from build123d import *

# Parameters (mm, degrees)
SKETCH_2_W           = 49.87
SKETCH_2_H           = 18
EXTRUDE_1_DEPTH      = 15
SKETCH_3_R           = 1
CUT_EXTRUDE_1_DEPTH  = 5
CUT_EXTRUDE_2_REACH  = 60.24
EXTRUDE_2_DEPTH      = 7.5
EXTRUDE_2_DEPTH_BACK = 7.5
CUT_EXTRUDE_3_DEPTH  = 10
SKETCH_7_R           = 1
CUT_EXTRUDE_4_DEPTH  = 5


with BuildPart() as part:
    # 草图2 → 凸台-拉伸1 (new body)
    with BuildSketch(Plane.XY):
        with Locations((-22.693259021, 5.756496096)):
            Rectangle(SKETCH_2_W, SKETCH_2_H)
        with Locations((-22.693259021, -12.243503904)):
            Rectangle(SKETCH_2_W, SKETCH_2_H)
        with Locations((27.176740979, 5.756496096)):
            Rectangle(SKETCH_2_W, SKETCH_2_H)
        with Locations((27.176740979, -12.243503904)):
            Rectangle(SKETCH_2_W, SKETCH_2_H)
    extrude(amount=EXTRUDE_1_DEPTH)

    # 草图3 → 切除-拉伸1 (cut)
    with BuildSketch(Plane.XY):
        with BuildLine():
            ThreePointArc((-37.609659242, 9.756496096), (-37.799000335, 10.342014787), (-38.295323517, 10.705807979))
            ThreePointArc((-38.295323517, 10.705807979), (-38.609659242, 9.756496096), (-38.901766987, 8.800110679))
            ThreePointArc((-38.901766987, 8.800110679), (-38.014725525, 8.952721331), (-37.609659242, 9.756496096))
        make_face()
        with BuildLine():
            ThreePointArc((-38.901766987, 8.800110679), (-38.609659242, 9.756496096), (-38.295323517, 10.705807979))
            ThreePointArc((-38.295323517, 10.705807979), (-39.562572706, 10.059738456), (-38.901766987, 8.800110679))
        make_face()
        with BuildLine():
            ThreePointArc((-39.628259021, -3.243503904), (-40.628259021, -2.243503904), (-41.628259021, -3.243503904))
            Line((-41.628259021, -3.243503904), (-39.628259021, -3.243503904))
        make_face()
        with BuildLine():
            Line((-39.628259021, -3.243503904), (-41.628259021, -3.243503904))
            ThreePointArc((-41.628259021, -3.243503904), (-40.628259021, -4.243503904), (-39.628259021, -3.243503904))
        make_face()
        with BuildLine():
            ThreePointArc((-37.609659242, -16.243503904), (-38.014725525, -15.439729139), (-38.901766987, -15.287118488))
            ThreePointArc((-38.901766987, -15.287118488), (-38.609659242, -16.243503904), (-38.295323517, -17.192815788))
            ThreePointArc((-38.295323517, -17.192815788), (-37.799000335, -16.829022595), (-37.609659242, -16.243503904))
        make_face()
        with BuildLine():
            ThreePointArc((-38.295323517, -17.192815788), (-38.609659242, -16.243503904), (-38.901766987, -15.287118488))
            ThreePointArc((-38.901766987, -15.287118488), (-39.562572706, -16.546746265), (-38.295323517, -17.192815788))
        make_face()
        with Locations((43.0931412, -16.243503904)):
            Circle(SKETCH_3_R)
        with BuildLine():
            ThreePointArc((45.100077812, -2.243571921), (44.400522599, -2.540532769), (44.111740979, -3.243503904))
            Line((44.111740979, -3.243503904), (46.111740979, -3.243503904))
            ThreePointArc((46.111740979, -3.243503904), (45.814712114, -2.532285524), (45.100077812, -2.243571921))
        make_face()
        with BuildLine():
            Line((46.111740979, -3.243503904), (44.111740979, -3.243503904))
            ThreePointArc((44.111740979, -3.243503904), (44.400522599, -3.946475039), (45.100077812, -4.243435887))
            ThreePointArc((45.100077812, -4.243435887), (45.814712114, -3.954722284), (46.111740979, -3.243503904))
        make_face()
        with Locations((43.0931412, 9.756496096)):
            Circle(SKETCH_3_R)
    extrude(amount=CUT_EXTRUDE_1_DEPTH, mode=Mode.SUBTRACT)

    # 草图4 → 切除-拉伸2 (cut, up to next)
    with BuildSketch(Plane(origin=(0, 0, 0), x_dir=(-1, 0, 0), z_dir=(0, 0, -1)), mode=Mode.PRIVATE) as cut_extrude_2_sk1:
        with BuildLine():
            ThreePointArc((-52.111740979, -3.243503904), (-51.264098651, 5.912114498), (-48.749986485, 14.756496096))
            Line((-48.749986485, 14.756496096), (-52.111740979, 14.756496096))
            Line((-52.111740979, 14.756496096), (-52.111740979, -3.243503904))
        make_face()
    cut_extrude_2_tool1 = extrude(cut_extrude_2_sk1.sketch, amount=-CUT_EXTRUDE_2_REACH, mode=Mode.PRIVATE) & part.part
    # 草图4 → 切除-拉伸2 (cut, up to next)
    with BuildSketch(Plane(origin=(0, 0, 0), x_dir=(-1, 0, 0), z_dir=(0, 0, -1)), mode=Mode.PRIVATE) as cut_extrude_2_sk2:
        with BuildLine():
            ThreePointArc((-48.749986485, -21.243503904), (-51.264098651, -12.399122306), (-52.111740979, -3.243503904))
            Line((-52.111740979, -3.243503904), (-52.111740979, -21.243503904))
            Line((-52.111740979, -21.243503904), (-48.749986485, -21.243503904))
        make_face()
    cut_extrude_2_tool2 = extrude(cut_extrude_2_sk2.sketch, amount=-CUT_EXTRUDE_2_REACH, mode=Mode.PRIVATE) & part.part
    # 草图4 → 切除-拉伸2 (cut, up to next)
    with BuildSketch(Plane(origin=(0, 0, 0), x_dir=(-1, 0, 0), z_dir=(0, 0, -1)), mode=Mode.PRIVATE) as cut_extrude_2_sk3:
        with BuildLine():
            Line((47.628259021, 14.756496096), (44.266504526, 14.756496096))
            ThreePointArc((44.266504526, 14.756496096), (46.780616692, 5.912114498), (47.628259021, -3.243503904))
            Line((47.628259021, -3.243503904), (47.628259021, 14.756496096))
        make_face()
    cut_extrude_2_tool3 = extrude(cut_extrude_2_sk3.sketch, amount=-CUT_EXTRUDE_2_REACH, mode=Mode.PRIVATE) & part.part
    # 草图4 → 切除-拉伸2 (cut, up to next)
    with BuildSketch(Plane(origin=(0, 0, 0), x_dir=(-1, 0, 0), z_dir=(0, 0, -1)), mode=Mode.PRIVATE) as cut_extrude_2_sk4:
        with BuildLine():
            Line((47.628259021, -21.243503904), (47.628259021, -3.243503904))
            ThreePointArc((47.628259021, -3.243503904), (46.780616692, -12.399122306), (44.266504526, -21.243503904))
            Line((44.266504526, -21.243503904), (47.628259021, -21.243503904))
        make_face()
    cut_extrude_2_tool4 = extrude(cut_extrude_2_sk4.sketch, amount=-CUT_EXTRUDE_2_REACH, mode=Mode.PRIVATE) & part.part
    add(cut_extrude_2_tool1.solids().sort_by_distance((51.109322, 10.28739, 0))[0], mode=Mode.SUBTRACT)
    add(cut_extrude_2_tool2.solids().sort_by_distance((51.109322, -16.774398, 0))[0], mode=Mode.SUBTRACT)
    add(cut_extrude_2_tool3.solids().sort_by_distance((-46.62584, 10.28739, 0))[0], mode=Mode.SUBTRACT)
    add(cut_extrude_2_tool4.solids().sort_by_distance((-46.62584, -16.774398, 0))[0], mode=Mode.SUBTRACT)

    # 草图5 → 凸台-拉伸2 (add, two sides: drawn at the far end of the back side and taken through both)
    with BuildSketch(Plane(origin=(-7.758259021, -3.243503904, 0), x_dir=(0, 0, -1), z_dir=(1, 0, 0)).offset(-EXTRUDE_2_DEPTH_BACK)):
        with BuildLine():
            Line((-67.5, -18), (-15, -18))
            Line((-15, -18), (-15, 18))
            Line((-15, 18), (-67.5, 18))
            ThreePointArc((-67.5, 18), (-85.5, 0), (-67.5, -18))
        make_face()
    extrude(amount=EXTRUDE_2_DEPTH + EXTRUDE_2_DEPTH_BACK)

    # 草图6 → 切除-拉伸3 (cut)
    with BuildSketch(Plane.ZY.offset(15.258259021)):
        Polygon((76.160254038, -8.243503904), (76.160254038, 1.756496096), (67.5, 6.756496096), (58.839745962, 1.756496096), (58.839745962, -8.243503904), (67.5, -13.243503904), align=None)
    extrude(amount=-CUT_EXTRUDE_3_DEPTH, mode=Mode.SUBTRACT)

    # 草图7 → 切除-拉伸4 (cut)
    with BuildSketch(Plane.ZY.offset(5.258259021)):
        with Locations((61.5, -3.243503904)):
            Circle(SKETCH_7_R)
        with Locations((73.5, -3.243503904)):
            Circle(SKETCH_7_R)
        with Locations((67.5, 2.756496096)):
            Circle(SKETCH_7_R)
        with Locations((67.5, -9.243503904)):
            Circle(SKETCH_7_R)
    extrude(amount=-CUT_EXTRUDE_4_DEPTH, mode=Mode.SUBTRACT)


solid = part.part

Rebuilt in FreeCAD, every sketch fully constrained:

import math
import FreeCAD as App
import Part
import Sketcher
from FreeCAD import Vector
Q = App.Units.Quantity


def add_polygon(sketch, points):
    """Adds a closed chain of lines whose ends are joined by coincident constraints."""
    first, n = sketch.GeometryCount, len(points)
    for a, b in zip(points, points[1:] + points[:1]):
        sketch.addGeometry(Part.LineSegment(App.Vector(*a, 0), App.Vector(*b, 0)), False)
    for i in range(n):
        sketch.addConstraint(Sketcher.Constraint("Coincident", first + i, 2, first + (i + 1) % n, 1))

doc = App.newDocument("Part")
body = doc.addObject("PartDesign::Body", "Body")

# Sketch on XY plane
sketch1 = doc.addObject("Sketcher::SketchObject", "Sketch")
body.addObject(sketch1)
sketch1.AttachmentSupport = (doc.XY_Plane, [""])
sketch1.MapMode = "FlatFace"
add_polygon(sketch1, [(-47.628259, 14.756496), (-47.628259, -21.243504), (52.111741, -21.243504), (52.111741, 14.756496)])  # lines 0-3
sketch1.addConstraint(Sketcher.Constraint("Vertical", 0))
sketch1.addConstraint(Sketcher.Constraint("Horizontal", 1))
sketch1.addConstraint(Sketcher.Constraint("Vertical", 2))
sketch1.addConstraint(Sketcher.Constraint("Horizontal", 3))
sketch1.addConstraint(Sketcher.Constraint("DistanceY", 0, 2, 0, 1, Q("36 mm")))
sketch1.addConstraint(Sketcher.Constraint("DistanceX", 1, 1, 1, 2, Q("99.74 mm")))
sketch1.addConstraint(Sketcher.Constraint("DistanceX", 0, 2, -1, 1, Q("47.628259 mm")))
sketch1.addConstraint(Sketcher.Constraint("DistanceY", 0, 2, -1, 1, Q("21.243504 mm")))
pad1 = doc.addObject("PartDesign::Pad", "Pad")
body.addObject(pad1)
pad1.Profile = sketch1
pad1.Length = 15

# Sketch on XY plane
sketch2 = doc.addObject("Sketcher::SketchObject", "Sketch001")
body.addObject(sketch2)
sketch2.AttachmentSupport = (doc.XY_Plane, [""])
sketch2.MapMode = "FlatFace"
sketch2.addGeometry(Part.ArcOfCircle(Part.Circle(Vector(-38.609659, 9.756496, 0), Vector(0, 0, 1), 1), math.radians(0), math.radians(71.679283)), False)
sketch2.addGeometry(Part.ArcOfCircle(Part.Circle(Vector(-38.609659, 9.756496, 0), Vector(0, 0, 1), 1), math.radians(71.679283), math.radians(253.015814)), False)
sketch2.addGeometry(Part.ArcOfCircle(Part.Circle(Vector(-38.609659, 9.756496, 0), Vector(0, 0, 1), 1), math.radians(-106.984186), math.radians(0)), False)
sketch2.addGeometry(Part.Circle(Vector(-40.628259, -3.243504, 0), Vector(0, 0, 1), 1), False)
sketch2.addGeometry(Part.ArcOfCircle(Part.Circle(Vector(-38.609659, -16.243504, 0), Vector(0, 0, 1), 1), math.radians(0), math.radians(106.984186)), False)
sketch2.addGeometry(Part.ArcOfCircle(Part.Circle(Vector(-38.609659, -16.243504, 0), Vector(0, 0, 1), 1), math.radians(106.984186), math.radians(288.320717)), False)
sketch2.addGeometry(Part.ArcOfCircle(Part.Circle(Vector(-38.609659, -16.243504, 0), Vector(0, 0, 1), 1), math.radians(-71.679283), math.radians(0)), False)
sketch2.addGeometry(Part.Circle(Vector(43.093141, -16.243504, 0), Vector(0, 0, 1), 1), False)
sketch2.addGeometry(Part.ArcOfCircle(Part.Circle(Vector(45.111741, -3.243504, 0), Vector(0, 0, 1), 1), math.radians(90.668265), math.radians(180)), False)
sketch2.addGeometry(Part.ArcOfCircle(Part.Circle(Vector(45.111741, -3.243504, 0), Vector(0, 0, 1), 1), math.radians(180), math.radians(269.331735)), False)
sketch2.addGeometry(Part.ArcOfCircle(Part.Circle(Vector(45.111741, -3.243504, 0), Vector(0, 0, 1), 1), math.radians(-90.668265), math.radians(0)), False)
sketch2.addGeometry(Part.ArcOfCircle(Part.Circle(Vector(45.111741, -3.243504, 0), Vector(0, 0, 1), 1), math.radians(0), math.radians(90.668265)), False)
sketch2.addGeometry(Part.Circle(Vector(43.093141, 9.756496, 0), Vector(0, 0, 1), 1), False)
sketch2.addConstraint(Sketcher.Constraint("Coincident", 0, 2, 1, 1))
sketch2.addConstraint(Sketcher.Constraint("Coincident", 1, 2, 2, 1))
sketch2.addConstraint(Sketcher.Constraint("Coincident", 2, 2, 0, 1))
sketch2.addConstraint(Sketcher.Constraint("Coincident", 4, 2, 5, 1))
sketch2.addConstraint(Sketcher.Constraint("Coincident", 5, 2, 6, 1))
sketch2.addConstraint(Sketcher.Constraint("Coincident", 6, 2, 4, 1))
sketch2.addConstraint(Sketcher.Constraint("Coincident", 8, 2, 9, 1))
sketch2.addConstraint(Sketcher.Constraint("Coincident", 9, 2, 10, 1))
sketch2.addConstraint(Sketcher.Constraint("Coincident", 10, 2, 11, 1))
sketch2.addConstraint(Sketcher.Constraint("Coincident", 11, 2, 8, 1))
sketch2.addConstraint(Sketcher.Constraint("Coincident", 1, 3, 0, 3))
sketch2.addConstraint(Sketcher.Constraint("Coincident", 5, 3, 4, 3))
sketch2.addConstraint(Sketcher.Constraint("Coincident", 9, 3, 8, 3))
sketch2.addConstraint(Sketcher.Constraint("Coincident", 10, 3, 8, 3))
sketch2.addConstraint(Sketcher.Constraint("Diameter", 3, Q("2 mm")))
sketch2.addConstraint(Sketcher.Constraint("Diameter", 7, Q("2 mm")))
sketch2.addConstraint(Sketcher.Constraint("Diameter", 12, Q("2 mm")))
sketch2.addConstraint(Sketcher.Constraint("Radius", 0, Q("1 mm")))
sketch2.addConstraint(Sketcher.Constraint("Radius", 2, Q("1 mm")))
sketch2.addConstraint(Sketcher.Constraint("Radius", 4, Q("1 mm")))
sketch2.addConstraint(Sketcher.Constraint("Radius", 6, Q("1 mm")))
sketch2.addConstraint(Sketcher.Constraint("Radius", 8, Q("1 mm")))
sketch2.addConstraint(Sketcher.Constraint("Radius", 11, Q("1 mm")))
sketch2.addConstraint(Sketcher.Constraint("DistanceY", 3, 3, 1, 3, Q("13 mm")))
sketch2.addConstraint(Sketcher.Constraint("DistanceY", 4, 3, 3, 3, Q("13 mm")))
sketch2.addConstraint(Sketcher.Constraint("DistanceY", 7, 3, 3, 3, Q("13 mm")))
sketch2.addConstraint(Sketcher.Constraint("DistanceY", 7, 3, 8, 3, Q("13 mm")))
sketch2.addConstraint(Sketcher.Constraint("DistanceY", 8, 3, 12, 3, Q("13 mm")))
sketch2.addConstraint(Sketcher.Constraint("DistanceY", 7, 3, 8, 2, Q("13 mm")))
sketch2.addConstraint(Sketcher.Constraint("DistanceX", 3, 3, 1, 3, Q("2.0186 mm")))
sketch2.addConstraint(Sketcher.Constraint("DistanceX", 3, 3, 4, 3, Q("2.0186 mm")))
sketch2.addConstraint(Sketcher.Constraint("DistanceX", 4, 3, 7, 3, Q("81.7028 mm")))
sketch2.addConstraint(Sketcher.Constraint("DistanceX", 7, 3, 8, 3, Q("2.0186 mm")))
sketch2.addConstraint(Sketcher.Constraint("DistanceX", 12, 3, 8, 3, Q("2.0186 mm")))
sketch2.addConstraint(Sketcher.Constraint("DistanceX", 0, 3, -1, 1, Q("38.609659 mm")))
sketch2.addConstraint(Sketcher.Constraint("DistanceY", -1, 1, 1, 2, Q("8.800111 mm")))
sketch2.addConstraint(Sketcher.Constraint("DistanceY", 4, 2, -1, 1, Q("15.287118 mm")))
sketch2.addConstraint(Sketcher.Constraint("DistanceY", 11, 2, -1, 1, Q("2.243572 mm")))
sketch2.addConstraint(Sketcher.Constraint("DistanceY", 0, 3, 0, 2, Q("0.949312 mm")))
sketch2.addConstraint(Sketcher.Constraint("DistanceY", 2, 2, 0, 2, Q("0.949312 mm")))
sketch2.addConstraint(Sketcher.Constraint("DistanceY", 5, 2, 6, 3, Q("0.949312 mm")))
sketch2.addConstraint(Sketcher.Constraint("DistanceY", 5, 2, 6, 2, Q("0.949312 mm")))
sketch2.addConstraint(Sketcher.Constraint("DistanceY", 9, 2, 9, 3, Q("0.999932 mm")))
sketch2.addConstraint(Sketcher.Constraint("DistanceY", 9, 2, 10, 2, Q("0.999932 mm")))
sketch2.addConstraint(Sketcher.Constraint("DistanceY", 8, 3, 11, 2, Q("0.999932 mm")))
pocket1 = doc.addObject("PartDesign::Pocket", "Pocket")
body.addObject(pocket1)
pocket1.Profile = sketch2
pocket1.Length = 5
pocket1.Reversed = True

# Sketch on XY plane
sketch3 = doc.addObject("Sketcher::SketchObject", "Sketch002")
body.addObject(sketch3)
sketch3.AttachmentSupport = (doc.XY_Plane, [""])
sketch3.MapMode = "FlatFace"
sketch3.addGeometry(Part.ArcOfCircle(Part.Circle(Vector(2.241741, -3.243504, 0), Vector(0, 0, 1), 49.87), math.radians(0), math.radians(21.15784)), False)
sketch3.addGeometry(Part.LineSegment(Vector(48.749986, 14.756496, 0), Vector(52.111741, 14.756496, 0)), False)
sketch3.addGeometry(Part.LineSegment(Vector(52.111741, 14.756496, 0), Vector(52.111741, -3.243504, 0)), False)
sketch3.addConstraint(Sketcher.Constraint("Coincident", 0, 2, 1, 1))
sketch3.addConstraint(Sketcher.Constraint("Coincident", 1, 2, 2, 1))
sketch3.addConstraint(Sketcher.Constraint("Tangent", 2, 2, 0, 1))
sketch3.addConstraint(Sketcher.Constraint("Horizontal", 1))
sketch3.addConstraint(Sketcher.Constraint("Vertical", 2))
sketch3.addConstraint(Sketcher.Constraint("DistanceY", 2, 2, 2, 1, Q("18 mm")))
sketch3.addConstraint(Sketcher.Constraint("Radius", 0, Q("49.87 mm")))
sketch3.addConstraint(Sketcher.Constraint("DistanceX", -1, 1, 0, 3, Q("2.241741 mm")))
sketch3.addConstraint(Sketcher.Constraint("DistanceY", 0, 3, -1, 1, Q("3.243504 mm")))
pocket2 = doc.addObject("PartDesign::Pocket", "Pocket001")
body.addObject(pocket2)
pocket2.Profile = sketch3
pocket2.Type = "UpToFirst"
pocket2.Reversed = True

# Sketch on XY plane
sketch4 = doc.addObject("Sketcher::SketchObject", "Sketch003")
body.addObject(sketch4)
sketch4.AttachmentSupport = (doc.XY_Plane, [""])
sketch4.MapMode = "FlatFace"
sketch4.addGeometry(Part.ArcOfCircle(Part.Circle(Vector(2.241741, -3.243504, 0), Vector(0, 0, 1), 49.87), math.radians(-21.15784), math.radians(0)), False)
sketch4.addGeometry(Part.LineSegment(Vector(52.111741, -3.243504, 0), Vector(52.111741, -21.243504, 0)), False)
sketch4.addGeometry(Part.LineSegment(Vector(52.111741, -21.243504, 0), Vector(48.749986, -21.243504, 0)), False)
sketch4.addConstraint(Sketcher.Constraint("Tangent", 0, 2, 1, 1))
sketch4.addConstraint(Sketcher.Constraint("Coincident", 1, 2, 2, 1))
sketch4.addConstraint(Sketcher.Constraint("Coincident", 2, 2, 0, 1))
sketch4.addConstraint(Sketcher.Constraint("Vertical", 1))
sketch4.addConstraint(Sketcher.Constraint("Horizontal", 2))
sketch4.addConstraint(Sketcher.Constraint("DistanceY", 1, 2, 1, 1, Q("18 mm")))
sketch4.addConstraint(Sketcher.Constraint("Radius", 0, Q("49.87 mm")))
sketch4.addConstraint(Sketcher.Constraint("DistanceX", -1, 1, 0, 3, Q("2.241741 mm")))
sketch4.addConstraint(Sketcher.Constraint("DistanceY", 0, 3, -1, 1, Q("3.243504 mm")))
pocket3 = doc.addObject("PartDesign::Pocket", "Pocket002")
body.addObject(pocket3)
pocket3.Profile = sketch4
pocket3.Type = "UpToFirst"
pocket3.Reversed = True

# Sketch on XY plane
sketch5 = doc.addObject("Sketcher::SketchObject", "Sketch004")
body.addObject(sketch5)
sketch5.AttachmentSupport = (doc.XY_Plane, [""])
sketch5.MapMode = "FlatFace"
sketch5.addGeometry(Part.LineSegment(Vector(-47.628259, 14.756496, 0), Vector(-44.266505, 14.756496, 0)), False)
sketch5.addGeometry(Part.ArcOfCircle(Part.Circle(Vector(2.241741, -3.243504, 0), Vector(0, 0, 1), 49.87), math.radians(158.84216), math.radians(180)), False)
sketch5.addGeometry(Part.LineSegment(Vector(-47.628259, -3.243504, 0), Vector(-47.628259, 14.756496, 0)), False)
sketch5.addConstraint(Sketcher.Constraint("Coincident", 0, 2, 1, 1))
sketch5.addConstraint(Sketcher.Constraint("Tangent", 1, 2, 2, 1))
sketch5.addConstraint(Sketcher.Constraint("Coincident", 2, 2, 0, 1))
sketch5.addConstraint(Sketcher.Constraint("Horizontal", 0))
sketch5.addConstraint(Sketcher.Constraint("Vertical", 2))
sketch5.addConstraint(Sketcher.Constraint("DistanceY", 2, 1, 2, 2, Q("18 mm")))
sketch5.addConstraint(Sketcher.Constraint("Radius", 1, Q("49.87 mm")))
sketch5.addConstraint(Sketcher.Constraint("DistanceX", -1, 1, 1, 3, Q("2.241741 mm")))
sketch5.addConstraint(Sketcher.Constraint("DistanceY", 1, 3, -1, 1, Q("3.243504 mm")))
pocket4 = doc.addObject("PartDesign::Pocket", "Pocket003")
body.addObject(pocket4)
pocket4.Profile = sketch5
pocket4.Type = "UpToFirst"
pocket4.Reversed = True

# Sketch on XY plane
sketch6 = doc.addObject("Sketcher::SketchObject", "Sketch005")
body.addObject(sketch6)
sketch6.AttachmentSupport = (doc.XY_Plane, [""])
sketch6.MapMode = "FlatFace"
sketch6.addGeometry(Part.LineSegment(Vector(-47.628259, -21.243504, 0), Vector(-47.628259, -3.243504, 0)), False)
sketch6.addGeometry(Part.ArcOfCircle(Part.Circle(Vector(2.241741, -3.243504, 0), Vector(0, 0, 1), 49.87), math.radians(-180), math.radians(-158.84216)), False)
sketch6.addGeometry(Part.LineSegment(Vector(-44.266505, -21.243504, 0), Vector(-47.628259, -21.243504, 0)), False)
sketch6.addConstraint(Sketcher.Constraint("Tangent", 0, 2, 1, 1))
sketch6.addConstraint(Sketcher.Constraint("Coincident", 1, 2, 2, 1))
sketch6.addConstraint(Sketcher.Constraint("Coincident", 2, 2, 0, 1))
sketch6.addConstraint(Sketcher.Constraint("Vertical", 0))
sketch6.addConstraint(Sketcher.Constraint("Horizontal", 2))
sketch6.addConstraint(Sketcher.Constraint("DistanceY", 0, 1, 0, 2, Q("18 mm")))
sketch6.addConstraint(Sketcher.Constraint("Radius", 1, Q("49.87 mm")))
sketch6.addConstraint(Sketcher.Constraint("DistanceX", -1, 1, 1, 3, Q("2.241741 mm")))
sketch6.addConstraint(Sketcher.Constraint("DistanceY", 1, 3, -1, 1, Q("3.243504 mm")))
pocket5 = doc.addObject("PartDesign::Pocket", "Pocket004")
body.addObject(pocket5)
pocket5.Profile = sketch6
pocket5.Type = "UpToFirst"
pocket5.Reversed = True

# Sketch on YZ plane
sketch7 = doc.addObject("Sketcher::SketchObject", "Sketch006")
body.addObject(sketch7)
sketch7.AttachmentSupport = (doc.YZ_Plane, [""])
sketch7.MapMode = "FlatFace"
sketch7.AttachmentOffset = App.Placement(Vector(0, 0, -7.758259), App.Rotation())
sketch7.addGeometry(Part.LineSegment(Vector(-21.243504, 67.5, 0), Vector(-21.243504, 15, 0)), False)
sketch7.addGeometry(Part.LineSegment(Vector(-21.243504, 15, 0), Vector(14.756496, 15, 0)), False)
sketch7.addGeometry(Part.LineSegment(Vector(14.756496, 15, 0), Vector(14.756496, 67.5, 0)), False)
sketch7.addGeometry(Part.ArcOfCircle(Part.Circle(Vector(-3.243504, 67.5, 0), Vector(0, 0, 1), 18), math.radians(0), math.radians(180)), False)
sketch7.addConstraint(Sketcher.Constraint("Coincident", 0, 2, 1, 1))
sketch7.addConstraint(Sketcher.Constraint("Coincident", 1, 2, 2, 1))
sketch7.addConstraint(Sketcher.Constraint("Tangent", 2, 2, 3, 1))
sketch7.addConstraint(Sketcher.Constraint("Tangent", 3, 2, 0, 1))
sketch7.addConstraint(Sketcher.Constraint("Vertical", 0))
sketch7.addConstraint(Sketcher.Constraint("Horizontal", 1))
sketch7.addConstraint(Sketcher.Constraint("Vertical", 2))
sketch7.addConstraint(Sketcher.Constraint("Radius", 3, Q("18 mm")))
sketch7.addConstraint(Sketcher.Constraint("DistanceY", 0, 2, 0, 1, Q("52.5 mm")))
sketch7.addConstraint(Sketcher.Constraint("DistanceY", -1, 1, 0, 2, Q("15 mm")))
sketch7.addConstraint(Sketcher.Constraint("DistanceX", 3, 3, -1, 1, Q("3.243504 mm")))
pad2 = doc.addObject("PartDesign::Pad", "Pad001")
body.addObject(pad2)
pad2.Profile = sketch7
pad2.Type = "TwoLengths"
pad2.Length = 7.5
pad2.Length2 = 7.5

# Sketch on YZ plane
sketch8 = doc.addObject("Sketcher::SketchObject", "Sketch007")
body.addObject(sketch8)
sketch8.AttachmentSupport = (doc.YZ_Plane, [""])
sketch8.MapMode = "FlatFace"
sketch8.AttachmentOffset = App.Placement(Vector(0, 0, -15.258259), App.Rotation())
add_polygon(sketch8, [(-8.243504, 76.160254), (1.756496, 76.160254), (6.756496, 67.5), (1.756496, 58.839746), (-8.243504, 58.839746), (-13.243504, 67.5)])  # lines 0-5
sketch8.addConstraint(Sketcher.Constraint("Horizontal", 0))
sketch8.addConstraint(Sketcher.Constraint("Horizontal", 3))
sketch8.addConstraint(Sketcher.Constraint("Parallel", 1, 4))
sketch8.addConstraint(Sketcher.Constraint("Parallel", 2, 5))
sketch8.addConstraint(Sketcher.Constraint("Horizontal", 1, 2, 4, 2))
sketch8.addConstraint(Sketcher.Constraint("Vertical", 0, 2, 2, 2))
sketch8.addConstraint(Sketcher.Constraint("Vertical", 3, 2, 5, 2))
sketch8.addConstraint(Sketcher.Constraint("DistanceX", 0, 1, 0, 2, Q("10 mm")))
sketch8.addConstraint(Sketcher.Constraint("Angle", 1, Q("-60 deg")))
sketch8.addConstraint(Sketcher.Constraint("Distance", 1, Q("10 mm")))
sketch8.addConstraint(Sketcher.Constraint("DistanceY", -1, 1, 1, 2, Q("67.5 mm")))
sketch8.addConstraint(Sketcher.Constraint("DistanceX", -1, 1, 0, 2, Q("1.756496 mm")))
pocket6 = doc.addObject("PartDesign::Pocket", "Pocket005")
body.addObject(pocket6)
pocket6.Profile = sketch8
pocket6.Length = 10
pocket6.Reversed = True

# Sketch on YZ plane
sketch9 = doc.addObject("Sketcher::SketchObject", "Sketch008")
body.addObject(sketch9)
sketch9.AttachmentSupport = (doc.YZ_Plane, [""])
sketch9.MapMode = "FlatFace"
sketch9.AttachmentOffset = App.Placement(Vector(0, 0, -5.258259), App.Rotation())
sketch9.addGeometry(Part.Circle(Vector(-3.243504, 61.5, 0), Vector(0, 0, 1), 1), False)
sketch9.addGeometry(Part.Circle(Vector(-3.243504, 73.5, 0), Vector(0, 0, 1), 1), False)
sketch9.addGeometry(Part.Circle(Vector(2.756496, 67.5, 0), Vector(0, 0, 1), 1), False)
sketch9.addGeometry(Part.Circle(Vector(-9.243504, 67.5, 0), Vector(0, 0, 1), 1), False)
sketch9.addConstraint(Sketcher.Constraint("Equal", 0, 1))
sketch9.addConstraint(Sketcher.Constraint("Equal", 1, 2))
sketch9.addConstraint(Sketcher.Constraint("Equal", 2, 3))
sketch9.addConstraint(Sketcher.Constraint("Horizontal", 2, 3, 3, 3))
sketch9.addConstraint(Sketcher.Constraint("Vertical", 0, 3, 1, 3))
sketch9.addConstraint(Sketcher.Constraint("Diameter", 0, Q("2 mm")))
sketch9.addConstraint(Sketcher.Constraint("DistanceY", 0, 3, 1, 3, Q("12 mm")))
sketch9.addConstraint(Sketcher.Constraint("DistanceX", 0, 3, 2, 3, Q("6 mm")))
sketch9.addConstraint(Sketcher.Constraint("DistanceY", 0, 3, 2, 3, Q("6 mm")))
sketch9.addConstraint(Sketcher.Constraint("DistanceX", 3, 3, 0, 3, Q("6 mm")))
sketch9.addConstraint(Sketcher.Constraint("DistanceY", -1, 1, 0, 3, Q("61.5 mm")))
sketch9.addConstraint(Sketcher.Constraint("DistanceX", 0, 3, -1, 1, Q("3.243504 mm")))
pocket7 = doc.addObject("PartDesign::Pocket", "Pocket006")
body.addObject(pocket7)
pocket7.Profile = sketch9
pocket7.Length = 5
pocket7.Reversed = True

doc.recompute()
